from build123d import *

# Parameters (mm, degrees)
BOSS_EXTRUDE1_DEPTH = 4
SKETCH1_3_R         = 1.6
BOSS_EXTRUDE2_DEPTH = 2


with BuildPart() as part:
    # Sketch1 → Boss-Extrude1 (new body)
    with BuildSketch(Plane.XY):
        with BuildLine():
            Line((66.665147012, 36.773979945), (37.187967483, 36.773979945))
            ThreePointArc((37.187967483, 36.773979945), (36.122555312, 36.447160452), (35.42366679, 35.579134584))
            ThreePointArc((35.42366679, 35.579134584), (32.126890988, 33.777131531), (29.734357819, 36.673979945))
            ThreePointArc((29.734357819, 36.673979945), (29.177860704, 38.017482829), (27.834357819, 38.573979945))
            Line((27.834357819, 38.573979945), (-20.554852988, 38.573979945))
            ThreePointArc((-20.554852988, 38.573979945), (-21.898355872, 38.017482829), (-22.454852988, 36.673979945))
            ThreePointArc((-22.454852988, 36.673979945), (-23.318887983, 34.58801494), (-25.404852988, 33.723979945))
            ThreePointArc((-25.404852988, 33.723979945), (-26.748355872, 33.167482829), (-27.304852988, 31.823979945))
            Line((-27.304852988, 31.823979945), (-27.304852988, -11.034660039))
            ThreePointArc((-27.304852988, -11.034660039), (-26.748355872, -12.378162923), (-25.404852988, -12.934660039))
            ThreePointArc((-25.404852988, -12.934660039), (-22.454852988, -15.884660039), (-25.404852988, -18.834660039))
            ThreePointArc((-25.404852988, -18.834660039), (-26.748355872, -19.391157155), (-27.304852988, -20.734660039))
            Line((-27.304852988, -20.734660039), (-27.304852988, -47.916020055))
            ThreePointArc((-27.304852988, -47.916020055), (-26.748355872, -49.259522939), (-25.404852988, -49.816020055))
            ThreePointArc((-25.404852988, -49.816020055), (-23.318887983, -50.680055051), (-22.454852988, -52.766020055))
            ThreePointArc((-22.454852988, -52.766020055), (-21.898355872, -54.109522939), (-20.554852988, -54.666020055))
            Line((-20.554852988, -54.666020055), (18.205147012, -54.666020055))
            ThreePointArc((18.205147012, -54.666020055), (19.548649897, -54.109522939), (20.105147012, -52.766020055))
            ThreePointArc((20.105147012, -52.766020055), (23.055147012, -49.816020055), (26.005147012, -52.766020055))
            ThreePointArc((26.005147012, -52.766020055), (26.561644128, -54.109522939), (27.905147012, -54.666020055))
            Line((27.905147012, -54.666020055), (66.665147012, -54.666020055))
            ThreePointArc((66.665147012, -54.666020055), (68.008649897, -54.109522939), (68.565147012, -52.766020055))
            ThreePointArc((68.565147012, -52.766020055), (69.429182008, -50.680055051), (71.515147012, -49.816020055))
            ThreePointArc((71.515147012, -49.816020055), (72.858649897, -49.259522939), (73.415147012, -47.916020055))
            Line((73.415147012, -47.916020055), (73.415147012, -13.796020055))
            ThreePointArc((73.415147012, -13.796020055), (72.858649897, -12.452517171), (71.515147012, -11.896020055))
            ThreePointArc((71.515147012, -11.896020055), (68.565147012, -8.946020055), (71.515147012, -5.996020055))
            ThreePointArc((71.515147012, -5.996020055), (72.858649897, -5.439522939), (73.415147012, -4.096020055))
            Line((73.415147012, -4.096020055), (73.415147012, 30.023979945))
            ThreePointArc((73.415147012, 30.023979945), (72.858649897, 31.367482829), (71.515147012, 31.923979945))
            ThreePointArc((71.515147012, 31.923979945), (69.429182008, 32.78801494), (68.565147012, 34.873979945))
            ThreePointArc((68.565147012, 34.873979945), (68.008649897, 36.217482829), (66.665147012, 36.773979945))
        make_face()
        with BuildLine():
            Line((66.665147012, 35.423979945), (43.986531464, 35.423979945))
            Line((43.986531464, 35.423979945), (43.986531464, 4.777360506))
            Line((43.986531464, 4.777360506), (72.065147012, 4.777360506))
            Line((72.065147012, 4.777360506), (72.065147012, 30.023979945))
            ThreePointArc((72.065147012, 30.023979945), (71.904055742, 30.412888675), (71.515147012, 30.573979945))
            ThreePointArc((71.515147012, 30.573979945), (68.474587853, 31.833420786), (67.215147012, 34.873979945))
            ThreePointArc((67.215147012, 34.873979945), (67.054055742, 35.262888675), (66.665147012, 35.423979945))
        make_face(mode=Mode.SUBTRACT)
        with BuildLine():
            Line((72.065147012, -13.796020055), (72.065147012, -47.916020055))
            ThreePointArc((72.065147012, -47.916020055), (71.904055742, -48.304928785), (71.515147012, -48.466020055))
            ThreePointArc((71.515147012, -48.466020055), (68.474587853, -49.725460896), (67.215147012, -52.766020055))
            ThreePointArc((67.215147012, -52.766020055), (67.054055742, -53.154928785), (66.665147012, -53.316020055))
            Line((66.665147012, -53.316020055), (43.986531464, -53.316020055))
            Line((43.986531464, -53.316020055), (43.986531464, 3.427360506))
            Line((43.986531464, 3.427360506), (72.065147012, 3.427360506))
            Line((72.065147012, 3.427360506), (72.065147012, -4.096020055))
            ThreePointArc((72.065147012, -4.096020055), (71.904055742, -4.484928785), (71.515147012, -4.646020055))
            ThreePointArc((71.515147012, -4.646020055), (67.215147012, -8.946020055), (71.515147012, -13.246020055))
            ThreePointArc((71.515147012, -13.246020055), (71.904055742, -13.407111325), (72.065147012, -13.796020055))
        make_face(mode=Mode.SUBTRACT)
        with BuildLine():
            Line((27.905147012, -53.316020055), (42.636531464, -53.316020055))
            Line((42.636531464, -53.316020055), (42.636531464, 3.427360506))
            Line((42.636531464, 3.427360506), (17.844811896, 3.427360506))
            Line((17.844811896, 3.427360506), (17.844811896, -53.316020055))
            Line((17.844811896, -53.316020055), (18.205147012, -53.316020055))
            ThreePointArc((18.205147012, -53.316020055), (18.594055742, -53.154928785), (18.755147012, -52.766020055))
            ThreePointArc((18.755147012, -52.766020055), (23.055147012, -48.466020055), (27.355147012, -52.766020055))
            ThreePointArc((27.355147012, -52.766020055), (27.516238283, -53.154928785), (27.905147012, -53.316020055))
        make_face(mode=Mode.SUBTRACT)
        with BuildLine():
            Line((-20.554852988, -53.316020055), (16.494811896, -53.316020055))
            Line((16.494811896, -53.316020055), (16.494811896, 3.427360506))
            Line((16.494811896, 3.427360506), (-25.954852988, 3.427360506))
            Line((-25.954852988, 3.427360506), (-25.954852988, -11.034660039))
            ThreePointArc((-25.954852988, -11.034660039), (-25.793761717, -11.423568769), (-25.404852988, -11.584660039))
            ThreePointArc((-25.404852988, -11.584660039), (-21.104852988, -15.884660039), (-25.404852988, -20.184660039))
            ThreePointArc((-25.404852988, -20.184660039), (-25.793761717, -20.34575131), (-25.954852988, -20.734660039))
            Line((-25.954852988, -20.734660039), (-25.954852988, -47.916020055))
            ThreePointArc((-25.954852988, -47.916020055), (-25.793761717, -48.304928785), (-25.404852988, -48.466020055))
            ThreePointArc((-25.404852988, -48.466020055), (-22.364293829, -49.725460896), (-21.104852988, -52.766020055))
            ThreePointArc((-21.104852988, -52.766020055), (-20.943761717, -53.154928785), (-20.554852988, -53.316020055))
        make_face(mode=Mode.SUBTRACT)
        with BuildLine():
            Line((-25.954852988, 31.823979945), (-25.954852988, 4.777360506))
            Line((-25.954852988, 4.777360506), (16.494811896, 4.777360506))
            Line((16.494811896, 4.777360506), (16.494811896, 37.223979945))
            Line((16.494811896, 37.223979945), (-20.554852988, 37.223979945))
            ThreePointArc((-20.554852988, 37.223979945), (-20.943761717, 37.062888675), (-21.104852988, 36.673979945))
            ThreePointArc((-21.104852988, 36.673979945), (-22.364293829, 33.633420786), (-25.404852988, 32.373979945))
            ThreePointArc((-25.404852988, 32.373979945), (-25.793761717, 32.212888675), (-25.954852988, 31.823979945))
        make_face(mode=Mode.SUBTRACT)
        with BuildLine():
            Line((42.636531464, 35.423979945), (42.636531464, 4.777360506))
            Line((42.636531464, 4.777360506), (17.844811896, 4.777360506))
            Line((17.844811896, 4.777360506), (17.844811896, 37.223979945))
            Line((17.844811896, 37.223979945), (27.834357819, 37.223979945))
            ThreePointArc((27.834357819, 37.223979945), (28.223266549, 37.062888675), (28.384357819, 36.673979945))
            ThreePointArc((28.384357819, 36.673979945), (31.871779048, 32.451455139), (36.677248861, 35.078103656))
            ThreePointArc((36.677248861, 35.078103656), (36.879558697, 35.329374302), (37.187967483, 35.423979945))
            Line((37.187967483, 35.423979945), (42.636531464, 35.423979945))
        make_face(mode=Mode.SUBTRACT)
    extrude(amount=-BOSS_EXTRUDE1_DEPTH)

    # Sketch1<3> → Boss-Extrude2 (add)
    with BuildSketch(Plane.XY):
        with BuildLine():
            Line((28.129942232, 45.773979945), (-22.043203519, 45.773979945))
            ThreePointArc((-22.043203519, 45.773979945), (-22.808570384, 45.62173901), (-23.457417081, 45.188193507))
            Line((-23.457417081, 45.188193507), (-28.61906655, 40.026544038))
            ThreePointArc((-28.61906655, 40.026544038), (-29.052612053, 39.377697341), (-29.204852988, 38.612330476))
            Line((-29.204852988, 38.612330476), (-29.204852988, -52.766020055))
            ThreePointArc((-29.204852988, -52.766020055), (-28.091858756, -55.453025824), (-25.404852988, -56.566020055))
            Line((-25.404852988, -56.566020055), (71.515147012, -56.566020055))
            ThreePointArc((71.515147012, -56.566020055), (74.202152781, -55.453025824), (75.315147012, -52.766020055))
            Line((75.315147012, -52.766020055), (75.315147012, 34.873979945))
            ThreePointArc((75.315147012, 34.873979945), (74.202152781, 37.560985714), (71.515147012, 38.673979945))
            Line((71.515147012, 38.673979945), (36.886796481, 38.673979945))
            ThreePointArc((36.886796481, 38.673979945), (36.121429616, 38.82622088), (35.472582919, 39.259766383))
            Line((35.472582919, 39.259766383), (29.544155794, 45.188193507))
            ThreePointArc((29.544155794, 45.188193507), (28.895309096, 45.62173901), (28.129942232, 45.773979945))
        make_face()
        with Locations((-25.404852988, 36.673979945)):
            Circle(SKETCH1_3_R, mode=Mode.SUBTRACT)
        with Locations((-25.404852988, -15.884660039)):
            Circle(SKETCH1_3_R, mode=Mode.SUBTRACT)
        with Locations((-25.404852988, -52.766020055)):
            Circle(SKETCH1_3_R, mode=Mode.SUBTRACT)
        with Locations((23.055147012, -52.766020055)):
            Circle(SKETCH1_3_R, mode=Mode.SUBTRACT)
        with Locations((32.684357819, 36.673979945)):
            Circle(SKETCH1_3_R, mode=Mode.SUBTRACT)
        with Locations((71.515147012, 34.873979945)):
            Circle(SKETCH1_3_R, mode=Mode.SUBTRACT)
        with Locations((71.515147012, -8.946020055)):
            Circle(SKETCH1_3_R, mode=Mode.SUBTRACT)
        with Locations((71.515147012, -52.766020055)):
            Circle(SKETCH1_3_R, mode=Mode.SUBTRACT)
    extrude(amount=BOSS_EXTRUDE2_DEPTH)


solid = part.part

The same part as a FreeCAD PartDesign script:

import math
import FreeCAD as App
import Part
import Sketcher
from FreeCAD import Vector
Q = App.Units.Quantity

doc = App.newDocument("Part")
params = doc.addObject("Spreadsheet::Sheet", "Params")
for row, (alias, value) in enumerate([
    ("sketch1_radius", "1.9 mm"),
    ("sketch1_radius2", "4.3 mm"),
    ("sketch1_radius3", "2.95 mm"),
    ("sketch1_width", "38.76 mm"),
    ("sketch1_height", "34.12 mm"),
    ("pad1_length", "4 mm"),
    ("sketch2_radius", "2 mm"),
    ("sketch2_diameter", "3.2 mm"),
    ("sketch2_radius2", "3.8 mm"),
    ("sketch2_width", "96.92 mm"),
    ("sketch2_height", "87.64 mm"),
    ("pad2_length", "2 mm"),
], start=1):
    params.set(f"A{row}", alias)
    params.set(f"B{row}", "=" + value)
    params.setAlias(f"B{row}", alias)

body = doc.addObject("PartDesign::Body", "Body")

sketch1 = body.newObject("Sketcher::SketchObject", "Sketch")
sketch1.AttachmentSupport = (doc.getObject("XY_Plane"), [""])
sketch1.MapMode = "FlatFace"
sketch1.addGeometry([
    Part.LineSegment(Vector(66.67, 36.77, 0), Vector(37.19, 36.77, 0)),
    Part.ArcOfCircle(Part.Circle(Vector(37.19, 34.87, 0), Vector(0, 0, 1), 1.9), math.radians(90), math.radians(158)),
    Part.ArcOfCircle(Part.Circle(Vector(32.68, 36.67, 0), Vector(0, 0, 1), 2.95), math.radians(180), math.radians(338)),
    Part.ArcOfCircle(Part.Circle(Vector(27.83, 36.67, 0), Vector(0, 0, 1), 1.9), math.radians(0), math.radians(90)),
    Part.LineSegment(Vector(27.83, 38.57, 0), Vector(-20.55, 38.57, 0)),
    Part.ArcOfCircle(Part.Circle(Vector(-20.55, 36.67, 0), Vector(0, 0, 1), 1.9), math.radians(90), math.radians(180)),
    Part.ArcOfCircle(Part.Circle(Vector(-25.4, 36.67, 0), Vector(0, 0, 1), 2.95), math.radians(-90), math.radians(0)),
    Part.ArcOfCircle(Part.Circle(Vector(-25.4, 31.82, 0), Vector(0, 0, 1), 1.9), math.radians(90), math.radians(180)),
    Part.LineSegment(Vector(-27.3, 31.82, 0), Vector(-27.3, -11.03, 0)),
    Part.ArcOfCircle(Part.Circle(Vector(-25.4, -11.03, 0), Vector(0, 0, 1), 1.9), math.radians(-180), math.radians(-90)),
    Part.ArcOfCircle(Part.Circle(Vector(-25.4, -15.88, 0), Vector(0, 0, 1), 2.95), math.radians(-90), math.radians(90)),
    Part.ArcOfCircle(Part.Circle(Vector(-25.4, -20.73, 0), Vector(0, 0, 1), 1.9), math.radians(90), math.radians(180)),
    Part.LineSegment(Vector(-27.3, -20.73, 0), Vector(-27.3, -47.92, 0)),
    Part.ArcOfCircle(Part.Circle(Vector(-25.4, -47.92, 0), Vector(0, 0, 1), 1.9), math.radians(-180), math.radians(-90)),
    Part.ArcOfCircle(Part.Circle(Vector(-25.4, -52.77, 0), Vector(0, 0, 1), 2.95), math.radians(0), math.radians(90)),
    Part.ArcOfCircle(Part.Circle(Vector(-20.55, -52.77, 0), Vector(0, 0, 1), 1.9), math.radians(-180), math.radians(-90)),
    Part.LineSegment(Vector(-20.55, -54.67, 0), Vector(18.21, -54.67, 0)),
    Part.ArcOfCircle(Part.Circle(Vector(18.21, -52.77, 0), Vector(0, 0, 1), 1.9), math.radians(-90), math.radians(0)),
    Part.ArcOfCircle(Part.Circle(Vector(23.06, -52.77, 0), Vector(0, 0, 1), 2.95), math.radians(0), math.radians(180)),
    Part.ArcOfCircle(Part.Circle(Vector(27.91, -52.77, 0), Vector(0, 0, 1), 1.9), math.radians(-180), math.radians(-90)),
    Part.LineSegment(Vector(27.91, -54.67, 0), Vector(66.67, -54.67, 0)),
    Part.ArcOfCircle(Part.Circle(Vector(66.67, -52.77, 0), Vector(0, 0, 1), 1.9), math.radians(-90), math.radians(0)),
    Part.ArcOfCircle(Part.Circle(Vector(71.52, -52.77, 0), Vector(0, 0, 1), 2.95), math.radians(90), math.radians(180)),
    Part.ArcOfCircle(Part.Circle(Vector(71.52, -47.92, 0), Vector(0, 0, 1), 1.9), math.radians(-90), math.radians(0)),
    Part.LineSegment(Vector(73.42, -47.92, 0), Vector(73.42, -13.8, 0)),
    Part.ArcOfCircle(Part.Circle(Vector(71.52, -13.8, 0), Vector(0, 0, 1), 1.9), math.radians(0), math.radians(90)),
    Part.ArcOfCircle(Part.Circle(Vector(71.52, -8.95, 0), Vector(0, 0, 1), 2.95), math.radians(90), math.radians(270)),
    Part.ArcOfCircle(Part.Circle(Vector(71.52, -4.1, 0), Vector(0, 0, 1), 1.9), math.radians(-90), math.radians(0)),
    Part.LineSegment(Vector(73.42, -4.1, 0), Vector(73.42, 30.02, 0)),
    Part.ArcOfCircle(Part.Circle(Vector(71.52, 30.02, 0), Vector(0, 0, 1), 1.9), math.radians(0), math.radians(90)),
    Part.ArcOfCircle(Part.Circle(Vector(71.52, 34.87, 0), Vector(0, 0, 1), 2.95), math.radians(180), math.radians(270)),
    Part.ArcOfCircle(Part.Circle(Vector(66.67, 34.87, 0), Vector(0, 0, 1), 1.9), math.radians(0), math.radians(90)),
    Part.LineSegment(Vector(16.49, -53.32, 0), Vector(-20.55, -53.32, 0)),
    Part.ArcOfCircle(Part.Circle(Vector(-20.55, -52.77, 0), Vector(0, 0, 1), 0.55), math.radians(-180), math.radians(-90)),
    Part.ArcOfCircle(Part.Circle(Vector(-25.4, -52.77, 0), Vector(0, 0, 1), 4.3), math.radians(0), math.radians(90)),
    Part.ArcOfCircle(Part.Circle(Vector(-25.4, -47.92, 0), Vector(0, 0, 1), 0.55), math.radians(-180), math.radians(-90)),
    Part.LineSegment(Vector(-25.95, -47.92, 0), Vector(-25.95, -20.73, 0)),
    Part.ArcOfCircle(Part.Circle(Vector(-25.4, -20.73, 0), Vector(0, 0, 1), 0.55), math.radians(90), math.radians(180)),
    Part.ArcOfCircle(Part.Circle(Vector(-25.4, -15.88, 0), Vector(0, 0, 1), 4.3), math.radians(-90), math.radians(90)),
    Part.ArcOfCircle(Part.Circle(Vector(-25.4, -11.03, 0), Vector(0, 0, 1), 0.55), math.radians(-180), math.radians(-90)),
    Part.LineSegment(Vector(-25.95, -11.03, 0), Vector(-25.95, 3.43, 0)),
    Part.LineSegment(Vector(-25.95, 3.43, 0), Vector(16.49, 3.43, 0)),
    Part.LineSegment(Vector(16.49, 3.43, 0), Vector(16.49, -53.32, 0)),
    Part.LineSegment(Vector(42.64, -53.32, 0), Vector(27.91, -53.32, 0)),
    Part.ArcOfCircle(Part.Circle(Vector(27.91, -52.77, 0), Vector(0, 0, 1), 0.55), math.radians(-180), math.radians(-90)),
    Part.ArcOfCircle(Part.Circle(Vector(23.06, -52.77, 0), Vector(0, 0, 1), 4.3), math.radians(0), math.radians(180)),
    Part.ArcOfCircle(Part.Circle(Vector(18.21, -52.77, 0), Vector(0, 0, 1), 0.55), math.radians(-90), math.radians(0)),
    Part.LineSegment(Vector(18.21, -53.32, 0), Vector(17.84, -53.32, 0)),
    Part.LineSegment(Vector(17.84, -53.32, 0), Vector(17.84, 3.43, 0)),
    Part.LineSegment(Vector(17.84, 3.43, 0), Vector(42.64, 3.43, 0)),
    Part.LineSegment(Vector(42.64, 3.43, 0), Vector(42.64, -53.32, 0)),
    Part.ArcOfCircle(Part.Circle(Vector(71.52, -13.8, 0), Vector(0, 0, 1), 0.55), math.radians(0), math.radians(90)),
    Part.LineSegment(Vector(72.07, -13.8, 0), Vector(72.07, -47.92, 0)),
    Part.ArcOfCircle(Part.Circle(Vector(71.52, -47.92, 0), Vector(0, 0, 1), 0.55), math.radians(-90), math.radians(0)),
    Part.ArcOfCircle(Part.Circle(Vector(71.52, -52.77, 0), Vector(0, 0, 1), 4.3), math.radians(90), math.radians(180)),
    Part.ArcOfCircle(Part.Circle(Vector(66.67, -52.77, 0), Vector(0, 0, 1), 0.55), math.radians(-90), math.radians(0)),
    Part.LineSegment(Vector(66.67, -53.32, 0), Vector(43.99, -53.32, 0)),
    Part.LineSegment(Vector(43.99, -53.32, 0), Vector(43.99, 3.43, 0)),
    Part.LineSegment(Vector(43.99, 3.43, 0), Vector(72.07, 3.43, 0)),
    Part.LineSegment(Vector(72.07, 3.43, 0), Vector(72.07, -4.1, 0)),
    Part.ArcOfCircle(Part.Circle(Vector(71.52, -4.1, 0), Vector(0, 0, 1), 0.55), math.radians(-90), math.radians(0)),
    Part.ArcOfCircle(Part.Circle(Vector(71.52, -8.95, 0), Vector(0, 0, 1), 4.3), math.radians(90), math.radians(270)),
    Part.LineSegment(Vector(-25.95, 4.78, 0), Vector(-25.95, 31.82, 0)),
    Part.ArcOfCircle(Part.Circle(Vector(-25.4, 31.82, 0), Vector(0, 0, 1), 0.55), math.radians(90), math.radians(180)),
    Part.ArcOfCircle(Part.Circle(Vector(-25.4, 36.67, 0), Vector(0, 0, 1), 4.3), math.radians(-90), math.radians(0)),
    Part.ArcOfCircle(Part.Circle(Vector(-20.55, 36.67, 0), Vector(0, 0, 1), 0.55), math.radians(90), math.radians(180)),
    Part.LineSegment(Vector(-20.55, 37.22, 0), Vector(16.49, 37.22, 0)),
    Part.LineSegment(Vector(16.49, 37.22, 0), Vector(16.49, 4.78, 0)),
    Part.LineSegment(Vector(16.49, 4.78, 0), Vector(-25.95, 4.78, 0)),
    Part.LineSegment(Vector(37.19, 35.42, 0), Vector(42.64, 35.42, 0)),
    Part.LineSegment(Vector(42.64, 35.42, 0), Vector(42.64, 4.78, 0)),
    Part.LineSegment(Vector(42.64, 4.78, 0), Vector(17.84, 4.78, 0)),
    Part.LineSegment(Vector(17.84, 4.78, 0), Vector(17.84, 37.22, 0)),
    Part.LineSegment(Vector(17.84, 37.22, 0), Vector(27.83, 37.22, 0)),
    Part.ArcOfCircle(Part.Circle(Vector(27.83, 36.67, 0), Vector(0, 0, 1), 0.55), math.radians(0), math.radians(90)),
    Part.ArcOfCircle(Part.Circle(Vector(32.68, 36.67, 0), Vector(0, 0, 1), 4.3), math.radians(-180), math.radians(-22)),
    Part.ArcOfCircle(Part.Circle(Vector(37.19, 34.87, 0), Vector(0, 0, 1), 0.55), math.radians(90), math.radians(158)),
    Part.LineSegment(Vector(43.99, 35.42, 0), Vector(66.67, 35.42, 0)),
    Part.ArcOfCircle(Part.Circle(Vector(66.67, 34.87, 0), Vector(0, 0, 1), 0.55), math.radians(0), math.radians(90)),
    Part.ArcOfCircle(Part.Circle(Vector(71.52, 34.87, 0), Vector(0, 0, 1), 4.3), math.radians(180), math.radians(270)),
    Part.ArcOfCircle(Part.Circle(Vector(71.52, 30.02, 0), Vector(0, 0, 1), 0.55), math.radians(0), math.radians(90)),
    Part.LineSegment(Vector(72.07, 30.02, 0), Vector(72.07, 4.78, 0)),
    Part.LineSegment(Vector(72.07, 4.78, 0), Vector(43.99, 4.78, 0)),
    Part.LineSegment(Vector(43.99, 4.78, 0), Vector(43.99, 35.42, 0)),
], False)
sketch1.addConstraint([
    Sketcher.Constraint("Tangent", 0, 2, 1, 1),
    Sketcher.Constraint("Tangent", 1, 2, 2, 2),
    Sketcher.Constraint("Tangent", 2, 1, 3, 1),
    Sketcher.Constraint("Tangent", 3, 2, 4, 1),
    Sketcher.Constraint("Tangent", 4, 2, 5, 1),
    Sketcher.Constraint("Tangent", 5, 2, 6, 2),
    Sketcher.Constraint("Tangent", 6, 1, 7, 1),
    Sketcher.Constraint("Tangent", 7, 2, 8, 1),
    Sketcher.Constraint("Tangent", 8, 2, 9, 1),
    Sketcher.Constraint("Tangent", 9, 2, 10, 2),
    Sketcher.Constraint("Tangent", 10, 1, 11, 1),
    Sketcher.Constraint("Tangent", 11, 2, 12, 1),
    Sketcher.Constraint("Tangent", 12, 2, 13, 1),
    Sketcher.Constraint("Tangent", 13, 2, 14, 2),
    Sketcher.Constraint("Tangent", 14, 1, 15, 1),
    Sketcher.Constraint("Tangent", 15, 2, 16, 1),
    Sketcher.Constraint("Tangent", 16, 2, 17, 1),
    Sketcher.Constraint("Tangent", 17, 2, 18, 2),
    Sketcher.Constraint("Tangent", 18, 1, 19, 1),
    Sketcher.Constraint("Tangent", 19, 2, 20, 1),
    Sketcher.Constraint("Tangent", 20, 2, 21, 1),
    Sketcher.Constraint("Tangent", 21, 2, 22, 2),
    Sketcher.Constraint("Tangent", 22, 1, 23, 1),
    Sketcher.Constraint("Tangent", 23, 2, 24, 1),
    Sketcher.Constraint("Tangent", 24, 2, 25, 1),
    Sketcher.Constraint("Tangent", 25, 2, 26, 2),
    Sketcher.Constraint("Tangent", 26, 1, 27, 1),
    Sketcher.Constraint("Tangent", 27, 2, 28, 1),
    Sketcher.Constraint("Tangent", 28, 2, 29, 1),
    Sketcher.Constraint("Tangent", 29, 2, 30, 2),
    Sketcher.Constraint("Tangent", 30, 1, 31, 1),
    Sketcher.Constraint("Tangent", 31, 2, 0, 1),
    Sketcher.Constraint("Tangent", 32, 2, 33, 2),
    Sketcher.Constraint("Tangent", 33, 1, 34, 1),
    Sketcher.Constraint("Tangent", 34, 2, 35, 2),
    Sketcher.Constraint("Tangent", 35, 1, 36, 1),
    Sketcher.Constraint("Tangent", 36, 2, 37, 2),
    Sketcher.Constraint("Tangent", 37, 1, 38, 1),
    Sketcher.Constraint("Tangent", 38, 2, 39, 2),
    Sketcher.Constraint("Tangent", 39, 1, 40, 1),
    Sketcher.Constraint("Coincident", 40, 2, 41, 1),
    Sketcher.Constraint("Coincident", 41, 2, 42, 1),
    Sketcher.Constraint("Coincident", 42, 2, 32, 1),
    Sketcher.Constraint("Tangent", 43, 2, 44, 2),
    Sketcher.Constraint("Tangent", 44, 1, 45, 1),
    Sketcher.Constraint("Tangent", 45, 2, 46, 2),
    Sketcher.Constraint("Tangent", 46, 1, 47, 1),
    Sketcher.Constraint("Coincident", 47, 2, 48, 1),
    Sketcher.Constraint("Coincident", 48, 2, 49, 1),
    Sketcher.Constraint("Coincident", 49, 2, 50, 1),
    Sketcher.Constraint("Coincident", 50, 2, 43, 1),
    Sketcher.Constraint("Tangent", 51, 1, 52, 1),
    Sketcher.Constraint("Tangent", 52, 2, 53, 2),
    Sketcher.Constraint("Tangent", 53, 1, 54, 1),
    Sketcher.Constraint("Tangent", 54, 2, 55, 2),
    Sketcher.Constraint("Tangent", 55, 1, 56, 1),
    Sketcher.Constraint("Coincident", 56, 2, 57, 1),
    Sketcher.Constraint("Coincident", 57, 2, 58, 1),
    Sketcher.Constraint("Coincident", 58, 2, 59, 1),
    Sketcher.Constraint("Tangent", 59, 2, 60, 2),
    Sketcher.Constraint("Tangent", 60, 1, 61, 1),
    Sketcher.Constraint("Tangent", 61, 2, 51, 2),
    Sketcher.Constraint("Tangent", 62, 2, 63, 2),
    Sketcher.Constraint("Tangent", 63, 1, 64, 1),
    Sketcher.Constraint("Tangent", 64, 2, 65, 2),
    Sketcher.Constraint("Tangent", 65, 1, 66, 1),
    Sketcher.Constraint("Coincident", 66, 2, 67, 1),
    Sketcher.Constraint("Coincident", 67, 2, 68, 1),
    Sketcher.Constraint("Coincident", 68, 2, 62, 1),
    Sketcher.Constraint("Coincident", 69, 2, 70, 1),
    Sketcher.Constraint("Coincident", 70, 2, 71, 1),
    Sketcher.Constraint("Coincident", 71, 2, 72, 1),
    Sketcher.Constraint("Coincident", 72, 2, 73, 1),
    Sketcher.Constraint("Tangent", 73, 2, 74, 2),
    Sketcher.Constraint("Tangent", 74, 1, 75, 1),
    Sketcher.Constraint("Tangent", 75, 2, 76, 2),
    Sketcher.Constraint("Tangent", 76, 1, 69, 1),
    Sketcher.Constraint("Tangent", 77, 2, 78, 2),
    Sketcher.Constraint("Tangent", 78, 1, 79, 1),
    Sketcher.Constraint("Tangent", 79, 2, 80, 2),
    Sketcher.Constraint("Tangent", 80, 1, 81, 1),
    Sketcher.Constraint("Coincident", 81, 2, 82, 1),
    Sketcher.Constraint("Coincident", 82, 2, 83, 1),
    Sketcher.Constraint("Coincident", 83, 2, 77, 1),
    Sketcher.Constraint("Horizontal", 0),
    Sketcher.Constraint("Horizontal", 4),
    Sketcher.Constraint("Vertical", 8),
    Sketcher.Constraint("Vertical", 12),
    Sketcher.Constraint("Horizontal", 16),
    Sketcher.Constraint("Horizontal", 20),
    Sketcher.Constraint("Vertical", 24),
    Sketcher.Constraint("Vertical", 28),
    Sketcher.Constraint("Horizontal", 32),
    Sketcher.Constraint("Vertical", 36),
    Sketcher.Constraint("Vertical", 40),
    Sketcher.Constraint("Horizontal", 41),
    Sketcher.Constraint("Vertical", 42),
    Sketcher.Constraint("Horizontal", 43),
    Sketcher.Constraint("Horizontal", 47),
    Sketcher.Constraint("Vertical", 48),
    Sketcher.Constraint("Horizontal", 49),
    Sketcher.Constraint("Vertical", 50),
    Sketcher.Constraint("Vertical", 52),
    Sketcher.Constraint("Horizontal", 56),
    Sketcher.Constraint("Vertical", 57),
    Sketcher.Constraint("Horizontal", 58),
    Sketcher.Constraint("Vertical", 59),
    Sketcher.Constraint("Vertical", 62),
    Sketcher.Constraint("Horizontal", 66),
    Sketcher.Constraint("Vertical", 67),
    Sketcher.Constraint("Horizontal", 68),
    Sketcher.Constraint("Horizontal", 69),
    Sketcher.Constraint("Vertical", 70),
    Sketcher.Constraint("Horizontal", 71),
    Sketcher.Constraint("Vertical", 72),
    Sketcher.Constraint("Horizontal", 73),
    Sketcher.Constraint("Horizontal", 77),
    Sketcher.Constraint("Vertical", 81),
    Sketcher.Constraint("Horizontal", 82),
    Sketcher.Constraint("Vertical", 83),
    Sketcher.Constraint("Coincident", 33, 3, 15, 3),
    Sketcher.Constraint("Coincident", 34, 3, 14, 3),
    Sketcher.Constraint("Coincident", 35, 3, 13, 3),
    Sketcher.Constraint("Coincident", 37, 3, 11, 3),
    Sketcher.Constraint("Coincident", 38, 3, 10, 3),
    Sketcher.Constraint("Coincident", 39, 3, 9, 3),
    Sketcher.Constraint("Coincident", 44, 3, 19, 3),
    Sketcher.Constraint("Coincident", 45, 3, 18, 3),
    Sketcher.Constraint("Coincident", 46, 3, 17, 3),
    Sketcher.Constraint("Coincident", 51, 3, 25, 3),
    Sketcher.Constraint("Coincident", 53, 3, 23, 3),
    Sketcher.Constraint("Coincident", 54, 3, 22, 3),
    Sketcher.Constraint("Coincident", 55, 3, 21, 3),
    Sketcher.Constraint("Coincident", 60, 3, 27, 3),
    Sketcher.Constraint("Coincident", 61, 3, 26, 3),
    Sketcher.Constraint("Coincident", 63, 3, 7, 3),
    Sketcher.Constraint("Coincident", 64, 3, 6, 3),
    Sketcher.Constraint("Coincident", 65, 3, 5, 3),
    Sketcher.Constraint("Coincident", 74, 3, 3, 3),
    Sketcher.Constraint("Coincident", 75, 3, 2, 3),
    Sketcher.Constraint("Coincident", 76, 3, 1, 3),
    Sketcher.Constraint("Coincident", 78, 3, 31, 3),
    Sketcher.Constraint("Coincident", 79, 3, 30, 3),
    Sketcher.Constraint("Coincident", 80, 3, 29, 3),
    Sketcher.Constraint("Equal", 1, 3),
    Sketcher.Constraint("Equal", 3, 5),
    Sketcher.Constraint("Equal", 2, 6),
    Sketcher.Constraint("Equal", 5, 7),
    Sketcher.Constraint("Equal", 7, 9),
    Sketcher.Constraint("Equal", 6, 10),
    Sketcher.Constraint("Equal", 9, 11),
    Sketcher.Constraint("Equal", 11, 13),
    Sketcher.Constraint("Equal", 10, 14),
    Sketcher.Constraint("Equal", 13, 15),
    Sketcher.Constraint("Equal", 15, 17),
    Sketcher.Constraint("Equal", 14, 18),
    Sketcher.Constraint("Equal", 17, 19),
    Sketcher.Constraint("Equal", 19, 21),
    Sketcher.Constraint("Equal", 18, 22),
    Sketcher.Constraint("Equal", 21, 23),
    Sketcher.Constraint("Equal", 23, 25),
    Sketcher.Constraint("Equal", 22, 26),
    Sketcher.Constraint("Equal", 25, 27),
    Sketcher.Constraint("Equal", 27, 29),
    Sketcher.Constraint("Equal", 26, 30),
    Sketcher.Constraint("Equal", 29, 31),
    Sketcher.Constraint("Equal", 39, 44),
    Sketcher.Constraint("Equal", 46, 51),
    Sketcher.Constraint("Equal", 60, 63),
    Sketcher.Constraint("Equal", 65, 74),
    Sketcher.Constraint("Equal", 76, 78),
    Sketcher.Constraint("Horizontal", 2, 3, 3, 3),
    Sketcher.Constraint("Horizontal", 5, 3, 6, 3),
    Sketcher.Constraint("Horizontal", 14, 3, 15, 3),
    Sketcher.Constraint("Horizontal", 17, 3, 18, 3),
    Sketcher.Constraint("Horizontal", 18, 3, 19, 3),
    Sketcher.Constraint("Horizontal", 21, 3, 22, 3),
    Sketcher.Constraint("Horizontal", 1, 3, 30, 3),
    Sketcher.Constraint("Horizontal", 41, 2, 48, 2),
    Sketcher.Constraint("Horizontal", 49, 2, 57, 2),
    Sketcher.Constraint("Horizontal", 68, 2, 70, 2),
    Sketcher.Constraint("Horizontal", 71, 2, 81, 2),
    Sketcher.Constraint("Vertical", 6, 3, 7, 3),
    Sketcher.Constraint("Vertical", 9, 3, 10, 3),
    Sketcher.Constraint("Vertical", 10, 3, 11, 3),
    Sketcher.Constraint("Vertical", 13, 3, 14, 3),
    Sketcher.Constraint("Vertical", 22, 3, 23, 3),
    Sketcher.Constraint("Vertical", 25, 3, 26, 3),
    Sketcher.Constraint("Vertical", 26, 3, 27, 3),
    Sketcher.Constraint("Vertical", 29, 3, 30, 3),
    Sketcher.Constraint("Vertical", 42, 2, 66, 2),
    Sketcher.Constraint("Vertical", 50, 2, 69, 2),
    Sketcher.Constraint("Vertical", 48, 2, 71, 2),
    Sketcher.Constraint("Vertical", 57, 2, 82, 2),
    Sketcher.Constraint("Equal", 16, 20),
    Sketcher.Constraint("Equal", 24, 28),
    Sketcher.Constraint("Radius", 1, Q("1.9 mm")),
    Sketcher.Constraint("Radius", 34, Q("4.3 mm")),
    Sketcher.Constraint("Radius", 2, Q("2.95 mm")),
    Sketcher.Constraint("DistanceX", 16, 1, 16, 2, Q("38.76 mm")),
    Sketcher.Constraint("DistanceY", 24, 1, 24, 2, Q("34.12 mm")),
    Sketcher.Constraint("DistanceX", 0, 2, 0, 1, Q("29.47718 mm")),
    Sketcher.Constraint("DistanceX", 4, 2, 4, 1, Q("48.389211 mm")),
    Sketcher.Constraint("DistanceX", 49, 1, 49, 2, Q("24.79172 mm")),
    Sketcher.Constraint("DistanceY", 8, 2, 8, 1, Q("42.85864 mm")),
    Sketcher.Constraint("DistanceY", 40, 1, 40, 2, Q("14.462021 mm")),
    Sketcher.Constraint("DistanceY", 62, 1, 62, 2, Q("27.046619 mm")),
    Sketcher.Constraint("DistanceX", 32, 2, 32, 1, Q("37.049665 mm")),
    Sketcher.Constraint("DistanceX", 43, 2, 43, 1, Q("14.731384 mm")),
    Sketcher.Constraint("DistanceX", 56, 2, 56, 1, Q("22.678616 mm")),
    Sketcher.Constraint("DistanceY", -1, 1, 1, 3, Q("34.87398 mm")),
    Sketcher.Constraint("DistanceX", -1, 1, 41, 2, Q("16.494812 mm")),
])
sketch1.setExpression("Constraints[196]", "Params.sketch1_radius")
sketch1.setExpression("Constraints[197]", "Params.sketch1_radius2")
sketch1.setExpression("Constraints[198]", "Params.sketch1_radius3")
sketch1.setExpression("Constraints[199]", "Params.sketch1_width")
sketch1.setExpression("Constraints[200]", "Params.sketch1_height")
pad1 = body.newObject("PartDesign::Pad", "Pad")
pad1.Profile = sketch1
pad1.setExpression("Length", "Params.pad1_length")
pad1.Reversed = True

sketch2 = body.newObject("Sketcher::SketchObject", "Sketch001")
sketch2.AttachmentSupport = (doc.getObject("XY_Plane"), [""])
sketch2.MapMode = "FlatFace"
sketch2.addGeometry([
    Part.LineSegment(Vector(28.1, 45.8, 0), Vector(-22, 45.8, 0)),
    Part.ArcOfCircle(Part.Circle(Vector(-22, 43.8, 0), Vector(0, 0, 1), 2), math.radians(90), math.radians(135)),
    Part.LineSegment(Vector(-23.5, 45.2, 0), Vector(-28.6, 40, 0)),
    Part.ArcOfCircle(Part.Circle(Vector(-27.2, 38.6, 0), Vector(0, 0, 1), 2), math.radians(135), math.radians(180)),
    Part.LineSegment(Vector(-29.2, 38.6, 0), Vector(-29.2, -52.8, 0)),
    Part.ArcOfCircle(Part.Circle(Vector(-25.4, -52.8, 0), Vector(0, 0, 1), 3.8), math.radians(180), math.radians(270)),
    Part.LineSegment(Vector(-25.4, -56.6, 0), Vector(71.5, -56.6, 0)),
    Part.ArcOfCircle(Part.Circle(Vector(71.5, -52.8, 0), Vector(0, 0, 1), 3.8), math.radians(-90), math.radians(0)),
    Part.LineSegment(Vector(75.3, -52.8, 0), Vector(75.3, 34.9, 0)),
    Part.ArcOfCircle(Part.Circle(Vector(71.5, 34.9, 0), Vector(0, 0, 1), 3.8), math.radians(0), math.radians(90)),
    Part.LineSegment(Vector(71.5, 38.7, 0), Vector(36.9, 38.7, 0)),
    Part.ArcOfCircle(Part.Circle(Vector(36.9, 40.7, 0), Vector(0, 0, 1), 2), math.radians(-135), math.radians(-90)),
    Part.LineSegment(Vector(35.5, 39.3, 0), Vector(29.5, 45.2, 0)),
    Part.ArcOfCircle(Part.Circle(Vector(28.1, 43.8, 0), Vector(0, 0, 1), 2), math.radians(45), math.radians(90)),
    Part.Circle(Vector(-25.4, -52.8, 0), Vector(0, 0, 1), 1.6),
    Part.Circle(Vector(-25.4, -15.9, 0), Vector(0, 0, 1), 1.6),
    Part.Circle(Vector(23.1, -52.8, 0), Vector(0, 0, 1), 1.6),
    Part.Circle(Vector(71.5, -52.8, 0), Vector(0, 0, 1), 1.6),
    Part.Circle(Vector(71.5, -8.9, 0), Vector(0, 0, 1), 1.6),
    Part.Circle(Vector(-25.4, 36.7, 0), Vector(0, 0, 1), 1.6),
    Part.Circle(Vector(32.7, 36.7, 0), Vector(0, 0, 1), 1.6),
    Part.Circle(Vector(71.5, 34.9, 0), Vector(0, 0, 1), 1.6),
], False)
sketch2.addConstraint([
    Sketcher.Constraint("Tangent", 0, 2, 1, 1),
    Sketcher.Constraint("Tangent", 1, 2, 2, 1),
    Sketcher.Constraint("Tangent", 2, 2, 3, 1),
    Sketcher.Constraint("Tangent", 3, 2, 4, 1),
    Sketcher.Constraint("Tangent", 4, 2, 5, 1),
    Sketcher.Constraint("Tangent", 5, 2, 6, 1),
    Sketcher.Constraint("Tangent", 6, 2, 7, 1),
    Sketcher.Constraint("Tangent", 7, 2, 8, 1),
    Sketcher.Constraint("Tangent", 8, 2, 9, 1),
    Sketcher.Constraint("Tangent", 9, 2, 10, 1),
    Sketcher.Constraint("Tangent", 10, 2, 11, 2),
    Sketcher.Constraint("Tangent", 11, 1, 12, 1),
    Sketcher.Constraint("Tangent", 12, 2, 13, 1),
    Sketcher.Constraint("Tangent", 13, 2, 0, 1),
    Sketcher.Constraint("Horizontal", 0),
    Sketcher.Constraint("Vertical", 4),
    Sketcher.Constraint("Horizontal", 6),
    Sketcher.Constraint("Vertical", 8),
    Sketcher.Constraint("Horizontal", 10),
    Sketcher.Constraint("Coincident", 14, 3, 5, 3),
    Sketcher.Constraint("Coincident", 17, 3, 7, 3),
    Sketcher.Constraint("Coincident", 21, 3, 9, 3),
    Sketcher.Constraint("Equal", 1, 3),
    Sketcher.Constraint("Equal", 5, 7),
    Sketcher.Constraint("Equal", 7, 9),
    Sketcher.Constraint("Equal", 3, 11),
    Sketcher.Constraint("Equal", 11, 13),
    Sketcher.Constraint("Equal", 14, 15),
    Sketcher.Constraint("Equal", 15, 16),
    Sketcher.Constraint("Equal", 16, 17),
    Sketcher.Constraint("Equal", 17, 18),
    Sketcher.Constraint("Equal", 18, 19),
    Sketcher.Constraint("Equal", 19, 20),
    Sketcher.Constraint("Equal", 20, 21),
    Sketcher.Constraint("Perpendicular", 2, 12),
    Sketcher.Constraint("Horizontal", 14, 3, 16, 3),
    Sketcher.Constraint("Horizontal", 19, 3, 20, 3),
    Sketcher.Constraint("Horizontal", 1, 2, 12, 2),
    Sketcher.Constraint("Vertical", 14, 3, 15, 3),
    Sketcher.Constraint("Vertical", 17, 3, 18, 3),
    Sketcher.Constraint("Vertical", 15, 3, 19, 3),
    Sketcher.Constraint("Radius", 1, Q("2 mm")),
    Sketcher.Constraint("Diameter", 14, Q("3.2 mm")),
    Sketcher.Constraint("Radius", 5, Q("3.8 mm")),
    Sketcher.Constraint("DistanceY", 19, 3, 11, 3, Q("4 mm")),
    Sketcher.Constraint("DistanceX", 6, 1, 6, 2, Q("96.92 mm")),
    Sketcher.Constraint("DistanceY", 8, 1, 8, 2, Q("87.64 mm")),
    Sketcher.Constraint("DistanceY", 9, 3, 1, 3, Q("8.9 mm")),
    Sketcher.Constraint("DistanceX", 1, 3, 11, 3, Q("58.93 mm")),
    Sketcher.Constraint("DistanceX", 5, 3, 16, 3, Q("48.46 mm")),
    Sketcher.Constraint("DistanceY", 17, 3, 18, 3, Q("43.82 mm")),
    Sketcher.Constraint("DistanceX", 10, 2, 10, 1, Q("34.628351 mm")),
    Sketcher.Constraint("DistanceY", -1, 1, 1, 3, Q("43.77398 mm")),
    Sketcher.Constraint("DistanceY", 15, 3, -1, 1, Q("15.88466 mm")),
    Sketcher.Constraint("DistanceX", 20, 3, 11, 3, Q("4.202439 mm")),
    Sketcher.Constraint("DistanceX", 1, 3, -1, 1, Q("22.043204 mm")),
])
sketch2.setExpression("Constraints[41]", "Params.sketch2_radius")
sketch2.setExpression("Constraints[42]", "Params.sketch2_diameter")
sketch2.setExpression("Constraints[43]", "Params.sketch2_radius2")
sketch2.setExpression("Constraints[45]", "Params.sketch2_width")
sketch2.setExpression("Constraints[46]", "Params.sketch2_height")
pad2 = body.newObject("PartDesign::Pad", "Pad001")
pad2.Profile = sketch2
pad2.setExpression("Length", "Params.pad2_length")

doc.recompute()
